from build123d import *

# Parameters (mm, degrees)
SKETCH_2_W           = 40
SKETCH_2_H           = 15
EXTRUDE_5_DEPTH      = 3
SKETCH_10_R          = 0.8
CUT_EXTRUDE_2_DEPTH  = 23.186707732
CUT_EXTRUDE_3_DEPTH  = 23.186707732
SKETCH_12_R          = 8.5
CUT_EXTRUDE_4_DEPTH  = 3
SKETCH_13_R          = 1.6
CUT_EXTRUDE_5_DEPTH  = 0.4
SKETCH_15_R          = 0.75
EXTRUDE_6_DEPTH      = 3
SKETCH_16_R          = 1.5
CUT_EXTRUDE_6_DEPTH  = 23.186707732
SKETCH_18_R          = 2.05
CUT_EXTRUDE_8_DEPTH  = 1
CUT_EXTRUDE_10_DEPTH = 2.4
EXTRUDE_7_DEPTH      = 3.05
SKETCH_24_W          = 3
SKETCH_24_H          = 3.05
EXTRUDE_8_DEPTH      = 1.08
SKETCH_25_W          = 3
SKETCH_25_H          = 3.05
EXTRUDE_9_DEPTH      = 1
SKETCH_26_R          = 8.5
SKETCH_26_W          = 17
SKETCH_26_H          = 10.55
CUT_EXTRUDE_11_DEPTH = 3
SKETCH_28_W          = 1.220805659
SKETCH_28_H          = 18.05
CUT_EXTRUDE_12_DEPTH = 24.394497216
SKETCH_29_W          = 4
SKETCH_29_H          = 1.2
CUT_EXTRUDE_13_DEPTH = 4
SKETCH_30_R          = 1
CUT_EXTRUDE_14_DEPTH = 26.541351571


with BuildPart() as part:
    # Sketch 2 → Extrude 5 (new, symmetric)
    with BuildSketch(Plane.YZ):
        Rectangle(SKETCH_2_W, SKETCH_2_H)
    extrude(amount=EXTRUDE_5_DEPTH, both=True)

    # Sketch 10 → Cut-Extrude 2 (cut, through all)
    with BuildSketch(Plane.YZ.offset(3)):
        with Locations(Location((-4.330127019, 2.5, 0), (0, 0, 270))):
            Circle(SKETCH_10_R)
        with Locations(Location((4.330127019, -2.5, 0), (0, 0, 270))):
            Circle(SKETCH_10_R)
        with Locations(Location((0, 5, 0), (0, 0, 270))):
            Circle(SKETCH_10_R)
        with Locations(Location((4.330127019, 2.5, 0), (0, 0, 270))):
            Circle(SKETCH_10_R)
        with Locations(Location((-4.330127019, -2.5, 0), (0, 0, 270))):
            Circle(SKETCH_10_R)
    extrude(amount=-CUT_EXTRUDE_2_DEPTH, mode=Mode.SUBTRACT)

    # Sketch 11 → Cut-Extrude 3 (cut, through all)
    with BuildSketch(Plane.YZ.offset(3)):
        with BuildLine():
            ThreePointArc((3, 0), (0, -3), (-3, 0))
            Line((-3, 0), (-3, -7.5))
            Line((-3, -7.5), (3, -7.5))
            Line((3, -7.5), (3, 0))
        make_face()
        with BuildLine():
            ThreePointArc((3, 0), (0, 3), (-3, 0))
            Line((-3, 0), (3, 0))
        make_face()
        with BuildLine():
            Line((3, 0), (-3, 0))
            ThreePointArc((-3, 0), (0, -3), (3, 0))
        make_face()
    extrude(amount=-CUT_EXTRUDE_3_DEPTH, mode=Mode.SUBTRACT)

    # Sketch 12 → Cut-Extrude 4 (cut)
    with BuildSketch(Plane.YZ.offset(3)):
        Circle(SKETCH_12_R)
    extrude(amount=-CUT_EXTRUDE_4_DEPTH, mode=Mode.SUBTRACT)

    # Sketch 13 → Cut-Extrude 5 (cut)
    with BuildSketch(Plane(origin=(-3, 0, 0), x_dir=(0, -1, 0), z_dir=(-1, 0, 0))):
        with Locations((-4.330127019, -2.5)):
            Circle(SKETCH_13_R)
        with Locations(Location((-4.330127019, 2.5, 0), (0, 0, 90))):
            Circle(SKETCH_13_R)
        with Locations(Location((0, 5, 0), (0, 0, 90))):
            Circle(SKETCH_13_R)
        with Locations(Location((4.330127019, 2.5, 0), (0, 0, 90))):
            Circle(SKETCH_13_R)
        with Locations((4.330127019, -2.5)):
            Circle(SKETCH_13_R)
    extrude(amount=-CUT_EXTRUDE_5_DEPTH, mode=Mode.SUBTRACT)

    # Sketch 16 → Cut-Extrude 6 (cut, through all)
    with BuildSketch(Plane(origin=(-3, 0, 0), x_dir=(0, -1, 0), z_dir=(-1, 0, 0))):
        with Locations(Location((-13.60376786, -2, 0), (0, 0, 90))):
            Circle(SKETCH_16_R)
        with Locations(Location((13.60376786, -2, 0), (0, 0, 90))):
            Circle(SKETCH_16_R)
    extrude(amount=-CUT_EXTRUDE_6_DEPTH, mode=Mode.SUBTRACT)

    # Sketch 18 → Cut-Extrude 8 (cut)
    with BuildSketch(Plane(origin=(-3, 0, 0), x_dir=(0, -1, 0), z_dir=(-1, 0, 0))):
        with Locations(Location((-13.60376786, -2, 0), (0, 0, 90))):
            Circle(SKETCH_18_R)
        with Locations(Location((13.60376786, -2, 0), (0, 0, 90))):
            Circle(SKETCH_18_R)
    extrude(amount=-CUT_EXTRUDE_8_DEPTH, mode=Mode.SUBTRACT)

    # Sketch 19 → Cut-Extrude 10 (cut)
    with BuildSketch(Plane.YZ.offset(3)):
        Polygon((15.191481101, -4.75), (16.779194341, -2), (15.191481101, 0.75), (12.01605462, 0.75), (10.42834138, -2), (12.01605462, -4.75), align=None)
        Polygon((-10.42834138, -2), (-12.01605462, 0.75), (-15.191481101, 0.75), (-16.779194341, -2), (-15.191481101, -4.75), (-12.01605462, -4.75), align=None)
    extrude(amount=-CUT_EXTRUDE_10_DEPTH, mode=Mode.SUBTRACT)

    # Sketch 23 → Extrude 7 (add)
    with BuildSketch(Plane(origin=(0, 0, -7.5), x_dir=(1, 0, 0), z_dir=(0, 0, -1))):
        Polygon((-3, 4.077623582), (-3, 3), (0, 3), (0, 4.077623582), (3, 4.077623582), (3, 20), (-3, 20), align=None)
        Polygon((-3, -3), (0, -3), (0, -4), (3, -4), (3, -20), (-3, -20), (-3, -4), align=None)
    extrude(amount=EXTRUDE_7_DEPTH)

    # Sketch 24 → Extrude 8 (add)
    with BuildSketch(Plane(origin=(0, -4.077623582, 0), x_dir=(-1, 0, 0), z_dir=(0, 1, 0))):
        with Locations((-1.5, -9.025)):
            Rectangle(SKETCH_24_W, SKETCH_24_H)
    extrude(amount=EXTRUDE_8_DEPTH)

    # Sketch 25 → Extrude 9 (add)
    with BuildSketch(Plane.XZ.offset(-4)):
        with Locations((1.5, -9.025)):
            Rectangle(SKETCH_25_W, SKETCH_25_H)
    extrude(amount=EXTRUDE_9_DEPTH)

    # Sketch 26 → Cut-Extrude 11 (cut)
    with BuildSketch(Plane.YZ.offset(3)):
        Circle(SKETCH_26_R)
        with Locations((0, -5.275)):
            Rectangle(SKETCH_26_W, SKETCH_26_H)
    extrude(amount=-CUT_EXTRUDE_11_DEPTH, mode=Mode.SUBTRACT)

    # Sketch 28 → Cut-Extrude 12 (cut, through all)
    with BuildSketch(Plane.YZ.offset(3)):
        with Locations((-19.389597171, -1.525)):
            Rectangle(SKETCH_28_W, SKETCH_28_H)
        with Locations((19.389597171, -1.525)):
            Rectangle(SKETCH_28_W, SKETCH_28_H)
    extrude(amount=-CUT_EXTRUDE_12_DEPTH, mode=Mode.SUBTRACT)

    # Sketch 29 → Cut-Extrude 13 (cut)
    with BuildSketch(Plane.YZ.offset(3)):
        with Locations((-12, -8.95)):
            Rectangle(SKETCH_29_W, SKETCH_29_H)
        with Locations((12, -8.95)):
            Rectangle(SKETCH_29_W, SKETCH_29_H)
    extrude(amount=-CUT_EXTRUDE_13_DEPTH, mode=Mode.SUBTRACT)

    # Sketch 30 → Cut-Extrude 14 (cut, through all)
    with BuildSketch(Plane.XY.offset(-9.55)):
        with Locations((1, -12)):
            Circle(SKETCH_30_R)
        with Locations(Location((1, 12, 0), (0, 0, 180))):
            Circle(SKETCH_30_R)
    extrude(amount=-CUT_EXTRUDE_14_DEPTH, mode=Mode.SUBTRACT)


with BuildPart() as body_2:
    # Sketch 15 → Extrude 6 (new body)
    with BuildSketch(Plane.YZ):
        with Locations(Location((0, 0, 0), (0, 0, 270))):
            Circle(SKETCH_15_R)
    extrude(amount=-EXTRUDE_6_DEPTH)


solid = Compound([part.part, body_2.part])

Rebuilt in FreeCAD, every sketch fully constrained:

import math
import FreeCAD as App
import Part
import Sketcher

V = App.Vector
Q = App.Units.Quantity


def add_polygon(sketch, points):
    """Adds a closed chain of lines whose ends are joined by coincident constraints."""
    first, n = sketch.GeometryCount, len(points)
    for a, b in zip(points, points[1:] + points[:1]):
        sketch.addGeometry(Part.LineSegment(App.Vector(*a, 0), App.Vector(*b, 0)), False)
    for i in range(n):
        sketch.addConstraint(Sketcher.Constraint("Coincident", first + i, 2, first + (i + 1) % n, 1))

doc = App.newDocument("Part")
body = doc.addObject("PartDesign::Body", "Body")

sketch1 = body.newObject("Sketcher::SketchObject", "Sketch")
sketch1.AttachmentSupport = (doc.getObject("YZ_Plane"), [""])
sketch1.MapMode = "FlatFace"
add_polygon(sketch1, [(-20, 8), (-20, -8), (20, -8), (20, 8)])
sketch1.addConstraint(Sketcher.Constraint("Vertical", 0))
sketch1.addConstraint(Sketcher.Constraint("Horizontal", 1))
sketch1.addConstraint(Sketcher.Constraint("Vertical", 2))
sketch1.addConstraint(Sketcher.Constraint("Horizontal", 3))
sketch1.addConstraint(Sketcher.Constraint("Symmetric", 0, 2, 2, 2, -1, 1))
sketch1.addConstraint(Sketcher.Constraint("DistanceX", 1, 1, 1, 2, Q("40 mm")))
sketch1.addConstraint(Sketcher.Constraint("DistanceY", 0, 2, 0, 1, Q("15 mm")))
pad1 = body.newObject("PartDesign::Pad", "Pad")
pad1.Profile = sketch1
pad1.Length = 6
pad1.Midplane = True

sketch2 = body.newObject("Sketcher::SketchObject", "Sketch001")
sketch2.AttachmentSupport = (doc.getObject("YZ_Plane"), [""])
sketch2.MapMode = "FlatFace"
sketch2.AttachmentOffset = App.Placement(V(0, 0, 3), App.Rotation())
sketch2.addGeometry(Part.Circle(V(-4.3, 2.5, 0), V(0, 0, 1), 0.8), False)
sketch2.addGeometry(Part.Circle(V(4.3, -2.5, 0), V(0, 0, 1), 0.8), False)
sketch2.addGeometry(Part.Circle(V(0, 5, 0), V(0, 0, 1), 0.8), False)
sketch2.addGeometry(Part.Circle(V(4.3, 2.5, 0), V(0, 0, 1), 0.8), False)
sketch2.addGeometry(Part.Circle(V(-4.3, -2.5, 0), V(0, 0, 1), 0.8), False)
sketch2.addConstraint(Sketcher.Constraint("Equal", 0, 1))
sketch2.addConstraint(Sketcher.Constraint("Equal", 1, 2))
sketch2.addConstraint(Sketcher.Constraint("Equal", 2, 3))
sketch2.addConstraint(Sketcher.Constraint("Equal", 3, 4))
sketch2.addConstraint(Sketcher.Constraint("Symmetric", 0, 3, 1, 3, -1, 1))
sketch2.addConstraint(Sketcher.Constraint("Symmetric", 3, 3, 4, 3, -1, 1))
sketch2.addConstraint(Sketcher.Constraint("Symmetric", 0, 3, 3, 3, -2))
sketch2.addConstraint(Sketcher.Constraint("PointOnObject", 2, 3, -2))
sketch2.addConstraint(Sketcher.Constraint("Diameter", 0, Q("1.6 mm")))
sketch2.addConstraint(Sketcher.Constraint("DistanceY", -1, 1, 2, 3, Q("5 mm")))
sketch2.addConstraint(Sketcher.Constraint("DistanceY", 1, 3, 0, 3, Q("5 mm")))
sketch2.addConstraint(Sketcher.Constraint("DistanceX", 0, 3, -1, 1, Q("4.330127 mm")))
pocket1 = body.newObject("PartDesign::Pocket", "Pocket")
pocket1.Profile = sketch2
pocket1.Type = "ThroughAll"

sketch3 = body.newObject("Sketcher::SketchObject", "Sketch002")
sketch3.AttachmentSupport = (doc.getObject("YZ_Plane"), [""])
sketch3.MapMode = "FlatFace"
sketch3.AttachmentOffset = App.Placement(V(0, 0, 3), App.Rotation())
sketch3.addGeometry(Part.LineSegment(V(-3, -7.5, 0), V(3, -7.5, 0)), False)
sketch3.addGeometry(Part.LineSegment(V(3, -7.5, 0), V(3, 0, 0)), False)
sketch3.addGeometry(Part.ArcOfCircle(Part.Circle(V(0, 0, 0), V(0, 0, 1), 3), math.radians(0), math.radians(180)), False)
sketch3.addGeometry(Part.LineSegment(V(-3, 0, 0), V(-3, -7.5, 0)), False)
sketch3.addConstraint(Sketcher.Constraint("Coincident", 0, 2, 1, 1))
sketch3.addConstraint(Sketcher.Constraint("Tangent", 1, 2, 2, 1))
sketch3.addConstraint(Sketcher.Constraint("Tangent", 2, 2, 3, 1))
sketch3.addConstraint(Sketcher.Constraint("Coincident", 3, 2, 0, 1))
sketch3.addConstraint(Sketcher.Constraint("Horizontal", 0))
sketch3.addConstraint(Sketcher.Constraint("Vertical", 1))
sketch3.addConstraint(Sketcher.Constraint("Vertical", 3))
sketch3.addConstraint(Sketcher.Constraint("Coincident", 2, 3, -1, 1))
sketch3.addConstraint(Sketcher.Constraint("Radius", 2, Q("3 mm")))
sketch3.addConstraint(Sketcher.Constraint("DistanceY", 1, 1, 1, 2, Q("7.5 mm")))
pocket2 = body.newObject("PartDesign::Pocket", "Pocket001")
pocket2.Profile = sketch3
pocket2.Type = "ThroughAll"

sketch4 = body.newObject("Sketcher::SketchObject", "Sketch003")
sketch4.AttachmentSupport = (doc.getObject("YZ_Plane"), [""])
sketch4.MapMode = "FlatFace"
sketch4.AttachmentOffset = App.Placement(V(0, 0, 3), App.Rotation())
sketch4.addGeometry(Part.Circle(V(0, 0, 0), V(0, 0, 1), 8), False)
sketch4.addConstraint(Sketcher.Constraint("Coincident", 0, 3, -1, 1))
sketch4.addConstraint(Sketcher.Constraint("Diameter", 0, Q("17 mm")))
pocket3 = body.newObject("PartDesign::Pocket", "Pocket002")
pocket3.Profile = sketch4
pocket3.Length = 3

sketch5 = body.newObject("Sketcher::SketchObject", "Sketch004")
sketch5.AttachmentSupport = (doc.getObject("YZ_Plane"), [""])
sketch5.MapMode = "FlatFace"
sketch5.AttachmentOffset = App.Placement(V(0, 0, -3), App.Rotation())
sketch5.addGeometry(Part.Circle(V(4.3, -2.5, 0), V(0, 0, 1), 1.6), False)
sketch5.addGeometry(Part.Circle(V(4.3, 2.5, 0), V(0, 0, 1), 1.6), False)
sketch5.addGeometry(Part.Circle(V(0, 5, 0), V(0, 0, 1), 1.6), False)
sketch5.addGeometry(Part.Circle(V(-4.3, 2.5, 0), V(0, 0, 1), 1.6), False)
sketch5.addGeometry(Part.Circle(V(-4.3, -2.5, 0), V(0, 0, 1), 1.6), False)
sketch5.addConstraint(Sketcher.Constraint("Equal", 0, 1))
sketch5.addConstraint(Sketcher.Constraint("Equal", 1, 2))
sketch5.addConstraint(Sketcher.Constraint("Equal", 2, 3))
sketch5.addConstraint(Sketcher.Constraint("Equal", 3, 4))
sketch5.addConstraint(Sketcher.Constraint("Symmetric", 0, 3, 3, 3, -1, 1))
sketch5.addConstraint(Sketcher.Constraint("Symmetric", 1, 3, 4, 3, -1, 1))
sketch5.addConstraint(Sketcher.Constraint("Symmetric", 1, 3, 3, 3, -2))
sketch5.addConstraint(Sketcher.Constraint("PointOnObject", 2, 3, -2))
sketch5.addConstraint(Sketcher.Constraint("Diameter", 0, Q("3.2 mm")))
sketch5.addConstraint(Sketcher.Constraint("DistanceY", -1, 1, 2, 3, Q("5 mm")))
sketch5.addConstraint(Sketcher.Constraint("DistanceY", 0, 3, 1, 3, Q("5 mm")))
sketch5.addConstraint(Sketcher.Constraint("DistanceX", -1, 1, 0, 3, Q("4.330127 mm")))
pocket4 = body.newObject("PartDesign::Pocket", "Pocket003")
pocket4.Profile = sketch5
pocket4.Length = 0.4
pocket4.Reversed = True

sketch6 = body.newObject("Sketcher::SketchObject", "Sketch005")
sketch6.AttachmentSupport = (doc.getObject("YZ_Plane"), [""])
sketch6.MapMode = "FlatFace"
sketch6.AttachmentOffset = App.Placement(V(0, 0, -3), App.Rotation())
sketch6.addGeometry(Part.Circle(V(13.6, -2, 0), V(0, 0, 1), 1.5), False)
sketch6.addGeometry(Part.Circle(V(-13.6, -2, 0), V(0, 0, 1), 1.5), False)
sketch6.addConstraint(Sketcher.Constraint("Equal", 0, 1))
sketch6.addConstraint(Sketcher.Constraint("Symmetric", 0, 3, 1, 3, -2))
sketch6.addConstraint(Sketcher.Constraint("Diameter", 0, Q("3 mm")))
sketch6.addConstraint(Sketcher.Constraint("DistanceY", 0, 3, -1, 1, Q("2 mm")))
sketch6.addConstraint(Sketcher.Constraint("DistanceX", -1, 1, 0, 3, Q("13.603768 mm")))
pocket5 = body.newObject("PartDesign::Pocket", "Pocket004")
pocket5.Profile = sketch6
pocket5.Type = "ThroughAll"
pocket5.Reversed = True

sketch7 = body.newObject("Sketcher::SketchObject", "Sketch006")
sketch7.AttachmentSupport = (doc.getObject("YZ_Plane"), [""])
sketch7.MapMode = "FlatFace"
sketch7.AttachmentOffset = App.Placement(V(0, 0, -3), App.Rotation())
sketch7.addGeometry(Part.Circle(V(13.6, -2, 0), V(0, 0, 1), 2), False)
sketch7.addGeometry(Part.Circle(V(-13.6, -2, 0), V(0, 0, 1), 2), False)
sketch7.addConstraint(Sketcher.Constraint("Equal", 0, 1))
sketch7.addConstraint(Sketcher.Constraint("Symmetric", 0, 3, 1, 3, -2))
sketch7.addConstraint(Sketcher.Constraint("Diameter", 0, Q("4.1 mm")))
sketch7.addConstraint(Sketcher.Constraint("DistanceY", 0, 3, -1, 1, Q("2 mm")))
sketch7.addConstraint(Sketcher.Constraint("DistanceX", -1, 1, 0, 3, Q("13.603768 mm")))
pocket6 = body.newObject("PartDesign::Pocket", "Pocket005")
pocket6.Profile = sketch7
pocket6.Length = 1
pocket6.Reversed = True

sketch8 = body.newObject("Sketcher::SketchObject", "Sketch007")
sketch8.AttachmentSupport = (doc.getObject("YZ_Plane"), [""])
sketch8.MapMode = "FlatFace"
sketch8.AttachmentOffset = App.Placement(V(0, 0, 3), App.Rotation())
add_polygon(sketch8, [(15.2, -4.8), (16.8, -2), (15.2, 0.8), (12, 0.8), (10.4, -2), (12, -4.8)])
add_polygon(sketch8, [(-10.4, -2), (-12, 0.8), (-15.2, 0.8), (-16.8, -2), (-15.2, -4.8), (-12, -4.8)])
sketch8.addConstraint(Sketcher.Constraint("Horizontal", 2))
sketch8.addConstraint(Sketcher.Constraint("Horizontal", 5))
sketch8.addConstraint(Sketcher.Constraint("Horizontal", 7))
sketch8.addConstraint(Sketcher.Constraint("Horizontal", 10))
sketch8.addConstraint(Sketcher.Constraint("Symmetric", 2, 2, 6, 2, -2))
sketch8.addConstraint(Sketcher.Constraint("Symmetric", 0, 2, 8, 2, -2))
sketch8.addConstraint(Sketcher.Constraint("Symmetric", 5, 2, 9, 2, -2))
sketch8.addConstraint(Sketcher.Constraint("Symmetric", 3, 2, 11, 2, -2))
sketch8.addConstraint(Sketcher.Constraint("Parallel", 0, 3))
sketch8.addConstraint(Sketcher.Constraint("Parallel", 1, 4))
sketch8.addConstraint(Sketcher.Constraint("Parallel", 4, 6))
sketch8.addConstraint(Sketcher.Constraint("Parallel", 3, 8))
sketch8.addConstraint(Sketcher.Constraint("Parallel", 8, 11))
sketch8.addConstraint(Sketcher.Constraint("Horizontal", 0, 2, 3, 2))
sketch8.addConstraint(Sketcher.Constraint("Vertical", 2, 2, 4, 2))
sketch8.addConstraint(Sketcher.Constraint("Angle", 0, Q("60 deg")))
sketch8.addConstraint(Sketcher.Constraint("DistanceY", 0, 2, -1, 1, Q("2 mm")))
sketch8.addConstraint(Sketcher.Constraint("DistanceY", 4, 2, 2, 2, Q("5.5 mm")))
sketch8.addConstraint(Sketcher.Constraint("DistanceX", 2, 2, 2, 1, Q("3.175426 mm")))
sketch8.addConstraint(Sketcher.Constraint("DistanceX", -1, 1, 1, 2, Q("15.191481 mm")))
pocket7 = body.newObject("PartDesign::Pocket", "Pocket006")
pocket7.Profile = sketch8
pocket7.Length = 2.4

sketch9 = body.newObject("Sketcher::SketchObject", "Sketch008")
sketch9.AttachmentSupport = (doc.getObject("XY_Plane"), [""])
sketch9.MapMode = "FlatFace"
sketch9.AttachmentOffset = App.Placement(V(0, 0, -7.5), App.Rotation())
add_polygon(sketch9, [(-3, -3), (0, -3), (0, -4.1), (3, -4.1), (3, -20), (-3, -20)])
add_polygon(sketch9, [(0, 3), (-3, 3), (-3, 20), (3, 20), (3, 4), (0, 4)])
sketch9.addConstraint(Sketcher.Constraint("Horizontal", 0))
sketch9.addConstraint(Sketcher.Constraint("Vertical", 1))
sketch9.addConstraint(Sketcher.Constraint("Horizontal", 2))
sketch9.addConstraint(Sketcher.Constraint("Vertical", 3))
sketch9.addConstraint(Sketcher.Constraint("Horizontal", 4))
sketch9.addConstraint(Sketcher.Constraint("Vertical", 5))
sketch9.addConstraint(Sketcher.Constraint("Horizontal", 6))
sketch9.addConstraint(Sketcher.Constraint("Vertical", 7))
sketch9.addConstraint(Sketcher.Constraint("Horizontal", 8))
sketch9.addConstraint(Sketcher.Constraint("Vertical", 9))
sketch9.addConstraint(Sketcher.Constraint("Horizontal", 10))
sketch9.addConstraint(Sketcher.Constraint("Vertical", 11))
sketch9.addConstraint(Sketcher.Constraint("Symmetric", 3, 2, 7, 2, -1, 1))
sketch9.addConstraint(Sketcher.Constraint("Symmetric", 0, 2, 11, 2, -1, 1))
sketch9.addConstraint(Sketcher.Constraint("PointOnObject", 0, 2, -2))
sketch9.addConstraint(Sketcher.Constraint("Vertical", 5, 2, 6, 2))
sketch9.addConstraint(Sketcher.Constraint("Vertical", 3, 2, 8, 2))
sketch9.addConstraint(Sketcher.Constraint("DistanceX", 0, 1, 0, 2, Q("3 mm")))
sketch9.addConstraint(Sketcher.Constraint("DistanceY", 5, 1, 5, 2, Q("17 mm")))
sketch9.addConstraint(Sketcher.Constraint("DistanceY", 9, 2, 9, 1, Q("16 mm")))
sketch9.addConstraint(Sketcher.Constraint("DistanceY", 0, 2, -1, 1, Q("3 mm")))
sketch9.addConstraint(Sketcher.Constraint("DistanceY", 1, 2, 1, 1, Q("1.077624 mm")))
pad2 = body.newObject("PartDesign::Pad", "Pad001")
pad2.Profile = sketch9
pad2.Length = 3.05
pad2.Reversed = True

sketch10 = body.newObject("Sketcher::SketchObject", "Sketch009")
sketch10.AttachmentSupport = (doc.getObject("XZ_Plane"), [""])
sketch10.MapMode = "FlatFace"
sketch10.AttachmentOffset = App.Placement(V(0, 0, 4.077624), App.Rotation())
add_polygon(sketch10, [(3, -7.5), (3, -10.6), (0, -10.6), (0, -7.5)])
sketch10.addConstraint(Sketcher.Constraint("Vertical", 0))
sketch10.addConstraint(Sketcher.Constraint("Horizontal", 1))
sketch10.addConstraint(Sketcher.Constraint("Vertical", 2))
sketch10.addConstraint(Sketcher.Constraint("Horizontal", 3))
sketch10.addConstraint(Sketcher.Constraint("PointOnObject", 1, 2, -2))
sketch10.addConstraint(Sketcher.Constraint("DistanceX", 1, 2, 1, 1, Q("3 mm")))
sketch10.addConstraint(Sketcher.Constraint("DistanceY", 0, 2, 0, 1, Q("3.05 mm")))
sketch10.addConstraint(Sketcher.Constraint("DistanceY", 2, 2, -1, 1, Q("7.5 mm")))
pad3 = body.newObject("PartDesign::Pad", "Pad002")
pad3.Profile = sketch10
pad3.Length = 1.08
pad3.Reversed = True

sketch11 = body.newObject("Sketcher::SketchObject", "Sketch010")
sketch11.AttachmentSupport = (doc.getObject("XZ_Plane"), [""])
sketch11.MapMode = "FlatFace"
sketch11.AttachmentOffset = App.Placement(V(0, 0, -4), App.Rotation())
add_polygon(sketch11, [(0, -7.5), (0, -10.6), (3, -10.6), (3, -7.5)])
sketch11.addConstraint(Sketcher.Constraint("Vertical", 0))
sketch11.addConstraint(Sketcher.Constraint("Horizontal", 1))
sketch11.addConstraint(Sketcher.Constraint("Vertical", 2))
sketch11.addConstraint(Sketcher.Constraint("Horizontal", 3))
sketch11.addConstraint(Sketcher.Constraint("PointOnObject", 0, 2, -2))
sketch11.addConstraint(Sketcher.Constraint("DistanceX", 1, 1, 1, 2, Q("3 mm")))
sketch11.addConstraint(Sketcher.Constraint("DistanceY", 0, 2, 0, 1, Q("3.05 mm")))
sketch11.addConstraint(Sketcher.Constraint("DistanceY", 2, 2, -1, 1, Q("7.5 mm")))
pad4 = body.newObject("PartDesign::Pad", "Pad003")
pad4.Profile = sketch11
pad4.Length = 1

sketch12 = body.newObject("Sketcher::SketchObject", "Sketch011")
sketch12.AttachmentSupport = (doc.getObject("YZ_Plane"), [""])
sketch12.MapMode = "FlatFace"
sketch12.AttachmentOffset = App.Placement(V(0, 0, 3), App.Rotation())
sketch12.addGeometry(Part.ArcOfCircle(Part.Circle(V(0, 0, 0), V(0, 0, 1), 8), math.radians(0), math.radians(180)), False)
sketch12.addGeometry(Part.LineSegment(V(-8, 0, 0), V(-8, -11, 0)), False)
sketch12.addGeometry(Part.LineSegment(V(-8, -11, 0), V(8, -11, 0)), False)
sketch12.addGeometry(Part.LineSegment(V(8, -11, 0), V(8, 0, 0)), False)
sketch12.addConstraint(Sketcher.Constraint("Tangent", 0, 2, 1, 1))
sketch12.addConstraint(Sketcher.Constraint("Coincident", 1, 2, 2, 1))
sketch12.addConstraint(Sketcher.Constraint("Coincident", 2, 2, 3, 1))
sketch12.addConstraint(Sketcher.Constraint("Tangent", 3, 2, 0, 1))
sketch12.addConstraint(Sketcher.Constraint("Vertical", 1))
sketch12.addConstraint(Sketcher.Constraint("Horizontal", 2))
sketch12.addConstraint(Sketcher.Constraint("Vertical", 3))
sketch12.addConstraint(Sketcher.Constraint("Coincident", 0, 3, -1, 1))
sketch12.addConstraint(Sketcher.Constraint("Radius", 0, Q("8.5 mm")))
sketch12.addConstraint(Sketcher.Constraint("DistanceY", 1, 2, 1, 1, Q("10.55 mm")))
pocket8 = body.newObject("PartDesign::Pocket", "Pocket007")
pocket8.Profile = sketch12
pocket8.Length = 3

sketch13 = body.newObject("Sketcher::SketchObject", "Sketch012")
sketch13.AttachmentSupport = (doc.getObject("YZ_Plane"), [""])
sketch13.MapMode = "FlatFace"
sketch13.AttachmentOffset = App.Placement(V(0, 0, 3), App.Rotation())
add_polygon(sketch13, [(-20, 7.5), (-20, -10.6), (-18.8, -10.6), (-18.8, 7.5)])
add_polygon(sketch13, [(18.8, 7.5), (18.8, -10.6), (20, -10.6), (20, 7.5)])
sketch13.addConstraint(Sketcher.Constraint("Vertical", 0))
sketch13.addConstraint(Sketcher.Constraint("Horizontal", 1))
sketch13.addConstraint(Sketcher.Constraint("Vertical", 2))
sketch13.addConstraint(Sketcher.Constraint("Horizontal", 3))
sketch13.addConstraint(Sketcher.Constraint("Vertical", 4))
sketch13.addConstraint(Sketcher.Constraint("Horizontal", 5))
sketch13.addConstraint(Sketcher.Constraint("Vertical", 6))
sketch13.addConstraint(Sketcher.Constraint("Horizontal", 7))
sketch13.addConstraint(Sketcher.Constraint("Symmetric", 1, 2, 4, 2, -2))
sketch13.addConstraint(Sketcher.Constraint("Symmetric", 3, 2, 6, 2, -2))
sketch13.addConstraint(Sketcher.Constraint("DistanceX", 0, 2, -1, 1, Q("20 mm")))
sketch13.addConstraint(Sketcher.Constraint("DistanceY", 0, 2, 0, 1, Q("18.05 mm")))
sketch13.addConstraint(Sketcher.Constraint("DistanceY", -1, 1, 2, 2, Q("7.5 mm")))
sketch13.addConstraint(Sketcher.Constraint("DistanceX", 1, 1, 1, 2, Q("1.220806 mm")))
pocket9 = body.newObject("PartDesign::Pocket", "Pocket008")
pocket9.Profile = sketch13
pocket9.Type = "ThroughAll"

sketch14 = body.newObject("Sketcher::SketchObject", "Sketch013")
sketch14.AttachmentSupport = (doc.getObject("YZ_Plane"), [""])
sketch14.MapMode = "FlatFace"
sketch14.AttachmentOffset = App.Placement(V(0, 0, 3), App.Rotation())
add_polygon(sketch14, [(-14, -8.3), (-14, -9.6), (-10, -9.6), (-10, -8.3)])
add_polygon(sketch14, [(10, -8.3), (10, -9.6), (14, -9.6), (14, -8.3)])
sketch14.addConstraint(Sketcher.Constraint("Vertical", 0))
sketch14.addConstraint(Sketcher.Constraint("Horizontal", 1))
sketch14.addConstraint(Sketcher.Constraint("Vertical", 2))
sketch14.addConstraint(Sketcher.Constraint("Horizontal", 3))
sketch14.addConstraint(Sketcher.Constraint("Vertical", 4))
sketch14.addConstraint(Sketcher.Constraint("Horizontal", 5))
sketch14.addConstraint(Sketcher.Constraint("Vertical", 6))
sketch14.addConstraint(Sketcher.Constraint("Horizontal", 7))
sketch14.addConstraint(Sketcher.Constraint("Symmetric", 1, 2, 4, 2, -2))
sketch14.addConstraint(Sketcher.Constraint("Symmetric", 3, 2, 6, 2, -2))
sketch14.addConstraint(Sketcher.Constraint("DistanceX", 1, 1, 1, 2, Q("4 mm")))
sketch14.addConstraint(Sketcher.Constraint("DistanceY", 0, 2, 0, 1, Q("1.2 mm")))
sketch14.addConstraint(Sketcher.Constraint("DistanceX", 0, 2, -1, 1, Q("14 mm")))
sketch14.addConstraint(Sketcher.Constraint("DistanceY", 0, 2, -1, 1, Q("9.55 mm")))
pocket10 = body.newObject("PartDesign::Pocket", "Pocket009")
pocket10.Profile = sketch14
pocket10.Length = 4

sketch15 = body.newObject("Sketcher::SketchObject", "Sketch014")
sketch15.AttachmentSupport = (doc.getObject("XY_Plane"), [""])
sketch15.MapMode = "FlatFace"
sketch15.AttachmentOffset = App.Placement(V(0, 0, -9.55), App.Rotation())
sketch15.addGeometry(Part.Circle(V(1, -12, 0), V(0, 0, 1), 1), False)
sketch15.addGeometry(Part.Circle(V(1, 12, 0), V(0, 0, 1), 1), False)
sketch15.addConstraint(Sketcher.Constraint("Equal", 0, 1))
sketch15.addConstraint(Sketcher.Constraint("Symmetric", 0, 3, 1, 3, -1))
sketch15.addConstraint(Sketcher.Constraint("Diameter", 0, Q("2 mm")))
sketch15.addConstraint(Sketcher.Constraint("DistanceX", -1, 1, 0, 3, Q("1 mm")))
sketch15.addConstraint(Sketcher.Constraint("DistanceY", 0, 3, -1, 1, Q("12 mm")))
pocket11 = body.newObject("PartDesign::Pocket", "Pocket010")
pocket11.Profile = sketch15
pocket11.Type = "ThroughAll"
body2 = doc.addObject("PartDesign::Body", "Body001")

sketch16 = body2.newObject("Sketcher::SketchObject", "Sketch015")
sketch16.AttachmentSupport = (doc.getObject("YZ_Plane001"), [""])
sketch16.MapMode = "FlatFace"
sketch16.addGeometry(Part.Circle(V(0, 0, 0), V(0, 0, 1), 0.8), False)
sketch16.addConstraint(Sketcher.Constraint("Coincident", 0, 3, -1, 1))
sketch16.addConstraint(Sketcher.Constraint("Diameter", 0, Q("1.5 mm")))
pad5 = body2.newObject("PartDesign::Pad", "Pad004")
pad5.Profile = sketch16
pad5.Length = 3
pad5.Reversed = True

doc.recompute()
